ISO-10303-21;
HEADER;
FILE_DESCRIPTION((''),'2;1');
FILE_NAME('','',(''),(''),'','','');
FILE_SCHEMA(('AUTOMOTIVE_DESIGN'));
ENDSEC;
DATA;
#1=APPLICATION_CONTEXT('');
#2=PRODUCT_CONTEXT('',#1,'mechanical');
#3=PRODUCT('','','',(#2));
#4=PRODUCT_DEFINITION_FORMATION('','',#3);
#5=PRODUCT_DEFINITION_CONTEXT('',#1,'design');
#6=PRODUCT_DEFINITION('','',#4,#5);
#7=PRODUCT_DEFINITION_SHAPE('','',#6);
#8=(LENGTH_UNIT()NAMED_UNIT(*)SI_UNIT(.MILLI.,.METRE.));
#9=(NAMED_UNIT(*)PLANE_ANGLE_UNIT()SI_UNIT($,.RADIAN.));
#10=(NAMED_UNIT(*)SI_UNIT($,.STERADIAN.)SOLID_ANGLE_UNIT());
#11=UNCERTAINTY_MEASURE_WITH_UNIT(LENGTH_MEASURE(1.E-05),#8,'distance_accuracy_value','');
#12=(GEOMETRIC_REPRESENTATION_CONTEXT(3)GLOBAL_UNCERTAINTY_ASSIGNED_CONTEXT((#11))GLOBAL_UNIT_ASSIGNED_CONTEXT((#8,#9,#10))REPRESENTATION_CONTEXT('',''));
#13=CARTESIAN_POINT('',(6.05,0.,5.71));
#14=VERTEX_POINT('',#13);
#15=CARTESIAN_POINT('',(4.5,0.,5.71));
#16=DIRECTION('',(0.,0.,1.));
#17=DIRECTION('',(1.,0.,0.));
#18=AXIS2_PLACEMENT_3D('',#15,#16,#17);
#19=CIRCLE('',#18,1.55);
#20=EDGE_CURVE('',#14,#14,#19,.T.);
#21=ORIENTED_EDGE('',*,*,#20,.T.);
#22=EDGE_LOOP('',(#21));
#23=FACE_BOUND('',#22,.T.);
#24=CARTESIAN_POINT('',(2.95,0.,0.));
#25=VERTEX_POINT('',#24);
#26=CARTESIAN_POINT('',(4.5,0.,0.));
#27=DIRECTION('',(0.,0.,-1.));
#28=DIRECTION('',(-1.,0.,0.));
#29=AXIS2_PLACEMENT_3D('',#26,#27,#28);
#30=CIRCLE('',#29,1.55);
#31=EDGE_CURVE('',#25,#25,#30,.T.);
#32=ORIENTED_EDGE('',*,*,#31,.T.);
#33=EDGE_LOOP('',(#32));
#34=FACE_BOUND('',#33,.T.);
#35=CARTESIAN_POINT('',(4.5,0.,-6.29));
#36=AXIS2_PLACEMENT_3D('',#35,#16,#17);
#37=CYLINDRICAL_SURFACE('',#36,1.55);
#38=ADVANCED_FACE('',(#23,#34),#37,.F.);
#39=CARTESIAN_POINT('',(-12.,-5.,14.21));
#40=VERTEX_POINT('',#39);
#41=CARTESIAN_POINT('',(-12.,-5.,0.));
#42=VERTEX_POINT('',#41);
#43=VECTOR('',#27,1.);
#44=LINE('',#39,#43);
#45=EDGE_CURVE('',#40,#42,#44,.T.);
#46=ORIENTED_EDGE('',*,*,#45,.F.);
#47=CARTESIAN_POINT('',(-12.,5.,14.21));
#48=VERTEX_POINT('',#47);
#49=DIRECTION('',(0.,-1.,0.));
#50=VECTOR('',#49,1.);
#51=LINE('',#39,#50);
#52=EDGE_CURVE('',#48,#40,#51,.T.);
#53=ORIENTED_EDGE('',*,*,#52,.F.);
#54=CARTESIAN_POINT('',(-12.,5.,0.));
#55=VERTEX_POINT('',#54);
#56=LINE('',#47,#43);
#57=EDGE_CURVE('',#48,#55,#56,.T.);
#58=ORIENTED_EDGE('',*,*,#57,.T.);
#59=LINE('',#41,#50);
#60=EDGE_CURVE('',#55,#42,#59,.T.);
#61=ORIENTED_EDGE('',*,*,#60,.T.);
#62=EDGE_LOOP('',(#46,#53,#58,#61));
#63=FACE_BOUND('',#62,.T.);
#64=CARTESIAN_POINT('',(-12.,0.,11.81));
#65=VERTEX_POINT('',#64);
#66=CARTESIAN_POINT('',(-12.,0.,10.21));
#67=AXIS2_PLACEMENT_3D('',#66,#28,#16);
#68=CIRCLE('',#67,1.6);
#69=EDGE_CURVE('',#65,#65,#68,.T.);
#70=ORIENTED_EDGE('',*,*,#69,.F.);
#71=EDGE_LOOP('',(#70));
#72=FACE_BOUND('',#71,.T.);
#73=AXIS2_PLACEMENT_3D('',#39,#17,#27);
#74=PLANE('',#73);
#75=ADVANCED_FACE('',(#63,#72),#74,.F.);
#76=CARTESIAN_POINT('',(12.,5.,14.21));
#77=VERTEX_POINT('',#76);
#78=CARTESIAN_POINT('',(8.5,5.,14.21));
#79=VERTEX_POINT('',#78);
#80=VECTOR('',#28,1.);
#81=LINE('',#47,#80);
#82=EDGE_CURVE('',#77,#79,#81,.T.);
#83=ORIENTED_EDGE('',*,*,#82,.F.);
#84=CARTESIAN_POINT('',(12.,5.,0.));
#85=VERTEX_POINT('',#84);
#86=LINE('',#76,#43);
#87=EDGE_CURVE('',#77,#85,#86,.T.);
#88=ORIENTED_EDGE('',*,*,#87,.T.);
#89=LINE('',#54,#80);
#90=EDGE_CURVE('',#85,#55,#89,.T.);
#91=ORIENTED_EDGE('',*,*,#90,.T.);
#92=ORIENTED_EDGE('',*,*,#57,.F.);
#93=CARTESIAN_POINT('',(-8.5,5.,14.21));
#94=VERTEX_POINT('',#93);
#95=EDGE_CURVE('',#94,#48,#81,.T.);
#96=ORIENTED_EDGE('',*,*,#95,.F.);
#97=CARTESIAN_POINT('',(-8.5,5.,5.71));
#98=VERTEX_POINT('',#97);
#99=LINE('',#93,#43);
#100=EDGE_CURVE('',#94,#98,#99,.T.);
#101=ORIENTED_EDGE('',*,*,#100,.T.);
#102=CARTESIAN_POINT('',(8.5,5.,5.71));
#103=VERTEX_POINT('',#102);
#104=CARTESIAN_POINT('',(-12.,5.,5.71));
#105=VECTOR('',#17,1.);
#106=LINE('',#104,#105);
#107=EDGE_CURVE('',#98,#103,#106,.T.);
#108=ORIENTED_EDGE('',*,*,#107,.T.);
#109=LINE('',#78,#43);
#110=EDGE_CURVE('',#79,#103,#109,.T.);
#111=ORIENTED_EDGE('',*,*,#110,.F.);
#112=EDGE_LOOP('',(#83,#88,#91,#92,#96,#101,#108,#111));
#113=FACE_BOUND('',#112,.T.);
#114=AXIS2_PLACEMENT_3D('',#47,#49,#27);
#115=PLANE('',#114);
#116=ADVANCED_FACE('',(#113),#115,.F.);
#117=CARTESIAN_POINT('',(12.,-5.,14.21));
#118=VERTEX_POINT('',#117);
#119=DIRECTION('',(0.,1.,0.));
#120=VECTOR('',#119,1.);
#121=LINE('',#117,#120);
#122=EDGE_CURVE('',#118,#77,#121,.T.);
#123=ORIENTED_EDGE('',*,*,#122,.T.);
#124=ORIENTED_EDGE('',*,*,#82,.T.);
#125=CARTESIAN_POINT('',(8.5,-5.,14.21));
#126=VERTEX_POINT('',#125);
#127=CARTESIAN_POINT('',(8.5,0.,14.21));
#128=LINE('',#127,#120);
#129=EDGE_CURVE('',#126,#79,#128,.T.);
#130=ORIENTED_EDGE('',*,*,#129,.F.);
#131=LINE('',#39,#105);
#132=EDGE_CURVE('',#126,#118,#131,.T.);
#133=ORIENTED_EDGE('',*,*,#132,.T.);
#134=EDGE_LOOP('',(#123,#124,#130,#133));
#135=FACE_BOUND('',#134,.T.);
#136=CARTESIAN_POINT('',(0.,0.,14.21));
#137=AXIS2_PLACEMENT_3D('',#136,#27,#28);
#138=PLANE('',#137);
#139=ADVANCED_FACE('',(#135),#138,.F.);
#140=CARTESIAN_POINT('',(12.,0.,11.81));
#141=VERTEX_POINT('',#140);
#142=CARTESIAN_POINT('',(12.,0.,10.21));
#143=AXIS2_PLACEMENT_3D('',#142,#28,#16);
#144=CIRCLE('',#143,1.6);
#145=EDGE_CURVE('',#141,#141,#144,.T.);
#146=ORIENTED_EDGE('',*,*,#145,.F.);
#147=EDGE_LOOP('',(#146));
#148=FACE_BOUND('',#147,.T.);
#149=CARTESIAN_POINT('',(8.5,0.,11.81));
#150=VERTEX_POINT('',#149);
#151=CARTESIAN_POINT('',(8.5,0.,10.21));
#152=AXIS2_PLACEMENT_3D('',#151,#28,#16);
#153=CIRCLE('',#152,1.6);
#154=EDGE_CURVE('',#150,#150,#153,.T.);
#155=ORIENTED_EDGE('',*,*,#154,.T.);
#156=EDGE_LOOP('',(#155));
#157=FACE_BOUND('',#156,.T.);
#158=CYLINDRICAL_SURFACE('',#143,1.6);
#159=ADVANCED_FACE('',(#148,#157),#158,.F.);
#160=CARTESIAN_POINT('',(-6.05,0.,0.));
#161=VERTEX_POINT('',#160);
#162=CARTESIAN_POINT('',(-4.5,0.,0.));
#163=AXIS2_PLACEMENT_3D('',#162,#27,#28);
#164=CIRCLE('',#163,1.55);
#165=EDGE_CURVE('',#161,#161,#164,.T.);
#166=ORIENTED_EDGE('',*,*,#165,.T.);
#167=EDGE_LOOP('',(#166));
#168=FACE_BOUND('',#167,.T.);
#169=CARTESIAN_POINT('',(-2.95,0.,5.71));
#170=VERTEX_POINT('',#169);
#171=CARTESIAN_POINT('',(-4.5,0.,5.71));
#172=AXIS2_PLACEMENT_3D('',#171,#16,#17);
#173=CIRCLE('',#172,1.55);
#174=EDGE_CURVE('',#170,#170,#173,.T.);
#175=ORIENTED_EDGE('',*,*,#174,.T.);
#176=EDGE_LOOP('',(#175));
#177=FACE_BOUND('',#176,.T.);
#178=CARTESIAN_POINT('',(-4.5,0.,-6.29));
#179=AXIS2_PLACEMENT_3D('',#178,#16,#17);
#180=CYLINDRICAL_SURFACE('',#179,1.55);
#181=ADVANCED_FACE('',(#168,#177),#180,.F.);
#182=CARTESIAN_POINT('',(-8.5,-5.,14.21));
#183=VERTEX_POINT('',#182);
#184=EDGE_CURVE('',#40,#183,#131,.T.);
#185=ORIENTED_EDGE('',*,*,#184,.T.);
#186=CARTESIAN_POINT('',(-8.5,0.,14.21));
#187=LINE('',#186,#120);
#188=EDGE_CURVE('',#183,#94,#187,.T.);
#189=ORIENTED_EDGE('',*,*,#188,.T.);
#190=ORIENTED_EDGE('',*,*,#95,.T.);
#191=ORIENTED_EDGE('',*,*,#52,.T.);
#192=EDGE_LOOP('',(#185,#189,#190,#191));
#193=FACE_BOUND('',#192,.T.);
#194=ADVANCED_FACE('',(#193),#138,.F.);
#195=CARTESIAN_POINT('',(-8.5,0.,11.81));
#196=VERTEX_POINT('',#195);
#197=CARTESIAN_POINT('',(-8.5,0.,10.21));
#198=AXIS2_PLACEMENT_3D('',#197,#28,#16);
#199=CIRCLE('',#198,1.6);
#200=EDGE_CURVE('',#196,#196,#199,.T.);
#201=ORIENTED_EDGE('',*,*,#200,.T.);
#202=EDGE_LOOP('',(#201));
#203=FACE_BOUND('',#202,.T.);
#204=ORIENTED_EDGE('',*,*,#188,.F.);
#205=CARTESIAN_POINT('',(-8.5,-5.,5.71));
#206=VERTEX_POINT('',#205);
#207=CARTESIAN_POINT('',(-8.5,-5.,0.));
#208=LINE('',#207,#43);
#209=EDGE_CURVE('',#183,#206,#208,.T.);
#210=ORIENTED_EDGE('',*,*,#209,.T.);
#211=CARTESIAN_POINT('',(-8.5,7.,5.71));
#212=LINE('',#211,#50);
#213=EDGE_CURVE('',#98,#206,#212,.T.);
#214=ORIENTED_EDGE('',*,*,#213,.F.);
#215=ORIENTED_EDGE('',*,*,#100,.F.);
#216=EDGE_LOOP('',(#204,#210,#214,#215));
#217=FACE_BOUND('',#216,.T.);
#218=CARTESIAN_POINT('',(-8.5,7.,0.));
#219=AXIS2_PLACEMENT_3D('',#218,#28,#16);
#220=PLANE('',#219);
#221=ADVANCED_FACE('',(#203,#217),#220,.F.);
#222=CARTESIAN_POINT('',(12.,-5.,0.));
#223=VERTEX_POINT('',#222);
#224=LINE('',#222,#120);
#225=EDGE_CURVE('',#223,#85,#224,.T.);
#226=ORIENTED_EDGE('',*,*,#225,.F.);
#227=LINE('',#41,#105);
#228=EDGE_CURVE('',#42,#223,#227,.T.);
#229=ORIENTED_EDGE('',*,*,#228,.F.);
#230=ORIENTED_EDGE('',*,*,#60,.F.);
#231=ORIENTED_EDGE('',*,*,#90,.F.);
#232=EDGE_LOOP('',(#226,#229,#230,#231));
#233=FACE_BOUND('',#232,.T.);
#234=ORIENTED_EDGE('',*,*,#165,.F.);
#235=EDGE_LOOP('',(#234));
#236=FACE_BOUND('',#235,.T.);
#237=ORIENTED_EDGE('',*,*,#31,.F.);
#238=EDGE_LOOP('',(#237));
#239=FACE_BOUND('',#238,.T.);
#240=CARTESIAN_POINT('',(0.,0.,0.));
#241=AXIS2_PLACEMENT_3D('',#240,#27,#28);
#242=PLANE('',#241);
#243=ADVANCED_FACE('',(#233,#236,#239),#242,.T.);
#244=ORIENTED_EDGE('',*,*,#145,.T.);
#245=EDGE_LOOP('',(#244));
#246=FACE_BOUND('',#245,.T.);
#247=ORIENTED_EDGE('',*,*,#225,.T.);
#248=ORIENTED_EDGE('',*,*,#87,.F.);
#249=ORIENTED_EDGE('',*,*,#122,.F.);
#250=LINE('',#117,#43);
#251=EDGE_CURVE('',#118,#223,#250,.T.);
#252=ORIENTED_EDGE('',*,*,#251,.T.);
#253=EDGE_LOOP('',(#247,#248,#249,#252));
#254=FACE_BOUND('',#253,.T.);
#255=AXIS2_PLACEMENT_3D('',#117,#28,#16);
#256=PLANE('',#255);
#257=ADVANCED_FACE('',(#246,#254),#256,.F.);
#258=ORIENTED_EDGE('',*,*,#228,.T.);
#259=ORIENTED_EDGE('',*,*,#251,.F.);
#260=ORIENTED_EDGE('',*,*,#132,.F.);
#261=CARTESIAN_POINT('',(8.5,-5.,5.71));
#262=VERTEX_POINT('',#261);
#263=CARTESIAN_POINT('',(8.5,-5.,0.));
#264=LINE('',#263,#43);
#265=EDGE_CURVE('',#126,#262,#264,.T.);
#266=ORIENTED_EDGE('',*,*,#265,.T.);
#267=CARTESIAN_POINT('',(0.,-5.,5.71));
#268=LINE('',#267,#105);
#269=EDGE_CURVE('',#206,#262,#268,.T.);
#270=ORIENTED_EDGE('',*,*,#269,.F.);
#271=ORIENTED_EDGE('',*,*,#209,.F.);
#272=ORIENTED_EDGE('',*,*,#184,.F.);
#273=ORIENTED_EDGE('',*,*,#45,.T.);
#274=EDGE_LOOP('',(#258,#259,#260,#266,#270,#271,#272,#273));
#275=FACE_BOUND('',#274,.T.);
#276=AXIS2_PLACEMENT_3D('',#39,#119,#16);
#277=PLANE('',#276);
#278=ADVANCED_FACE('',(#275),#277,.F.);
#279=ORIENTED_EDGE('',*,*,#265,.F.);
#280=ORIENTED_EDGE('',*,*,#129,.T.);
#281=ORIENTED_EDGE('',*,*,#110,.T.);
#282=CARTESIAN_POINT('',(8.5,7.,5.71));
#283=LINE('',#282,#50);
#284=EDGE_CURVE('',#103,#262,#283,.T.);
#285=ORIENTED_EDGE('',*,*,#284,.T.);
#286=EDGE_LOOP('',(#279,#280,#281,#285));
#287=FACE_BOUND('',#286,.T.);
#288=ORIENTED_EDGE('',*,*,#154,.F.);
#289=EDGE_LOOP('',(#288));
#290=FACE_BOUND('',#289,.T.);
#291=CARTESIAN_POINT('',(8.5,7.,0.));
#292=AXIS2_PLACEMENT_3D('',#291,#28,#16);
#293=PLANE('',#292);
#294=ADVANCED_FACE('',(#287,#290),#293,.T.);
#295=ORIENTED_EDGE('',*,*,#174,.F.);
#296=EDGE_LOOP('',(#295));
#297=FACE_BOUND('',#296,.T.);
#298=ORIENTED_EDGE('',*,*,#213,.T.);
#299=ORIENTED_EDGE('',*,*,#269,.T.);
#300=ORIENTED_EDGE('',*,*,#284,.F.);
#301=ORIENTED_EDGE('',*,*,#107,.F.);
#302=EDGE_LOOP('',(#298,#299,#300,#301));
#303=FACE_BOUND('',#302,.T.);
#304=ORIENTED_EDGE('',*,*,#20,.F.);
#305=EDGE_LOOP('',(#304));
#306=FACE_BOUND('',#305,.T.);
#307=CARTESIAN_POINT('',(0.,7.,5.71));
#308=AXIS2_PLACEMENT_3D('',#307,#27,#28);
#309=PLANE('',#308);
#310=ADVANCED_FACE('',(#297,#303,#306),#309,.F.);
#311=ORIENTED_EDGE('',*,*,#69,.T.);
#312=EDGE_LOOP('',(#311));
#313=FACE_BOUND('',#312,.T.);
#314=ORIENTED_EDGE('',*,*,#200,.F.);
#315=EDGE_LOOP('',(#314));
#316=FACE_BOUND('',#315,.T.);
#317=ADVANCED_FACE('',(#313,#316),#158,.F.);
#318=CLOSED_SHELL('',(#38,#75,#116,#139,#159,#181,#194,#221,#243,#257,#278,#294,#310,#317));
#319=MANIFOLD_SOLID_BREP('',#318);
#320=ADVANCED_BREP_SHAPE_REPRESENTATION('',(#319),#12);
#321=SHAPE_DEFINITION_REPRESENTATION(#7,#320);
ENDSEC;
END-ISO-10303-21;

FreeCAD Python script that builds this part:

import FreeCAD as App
import Part
import Sketcher

V = App.Vector
Q = App.Units.Quantity


def add_polygon(sketch, points):
    """Adds a closed chain of lines whose ends are joined by coincident constraints."""
    first, n = sketch.GeometryCount, len(points)
    for a, b in zip(points, points[1:] + points[:1]):
        sketch.addGeometry(Part.LineSegment(App.Vector(*a, 0), App.Vector(*b, 0)), False)
    for i in range(n):
        sketch.addConstraint(Sketcher.Constraint("Coincident", first + i, 2, first + (i + 1) % n, 1))

doc = App.newDocument("Part")
body = doc.addObject("PartDesign::Body", "Body")

sketch1 = doc.addObject("Sketcher::SketchObject", "Sketch")
body.addObject(sketch1)
sketch1.AttachmentSupport = (doc.XY_Plane, [""])
sketch1.MapMode = "FlatFace"
add_polygon(sketch1, [(-12, 5), (-12, -5), (12, -5), (12, 5)])
sketch1.addConstraint(Sketcher.Constraint("Vertical", 0))
sketch1.addConstraint(Sketcher.Constraint("Horizontal", 1))
sketch1.addConstraint(Sketcher.Constraint("Vertical", 2))
sketch1.addConstraint(Sketcher.Constraint("Horizontal", 3))
sketch1.addConstraint(Sketcher.Constraint("Symmetric", 0, 2, 2, 2, -1, 1))
sketch1.addConstraint(Sketcher.Constraint("DistanceX", 1, 1, 1, 2, Q("24 mm")))
sketch1.addConstraint(Sketcher.Constraint("DistanceY", 0, 2, 0, 1, Q("10 mm")))
pad1 = doc.addObject("PartDesign::Pad", "Pad")
body.addObject(pad1)
pad1.Profile = sketch1
pad1.Length = 14.21

sketch2 = doc.addObject("Sketcher::SketchObject", "Sketch001")
body.addObject(sketch2)
sketch2.AttachmentSupport = (doc.XZ_Plane, [""])
sketch2.MapMode = "FlatFace"
sketch2.AttachmentOffset = App.Placement(V(0, 0, 5), App.Rotation())
add_polygon(sketch2, [(-8, 14), (-8, 6), (8, 6), (8, 14)])
sketch2.addConstraint(Sketcher.Constraint("Vertical", 0))
sketch2.addConstraint(Sketcher.Constraint("Horizontal", 1))
sketch2.addConstraint(Sketcher.Constraint("Vertical", 2))
sketch2.addConstraint(Sketcher.Constraint("Horizontal", 3))
sketch2.addConstraint(Sketcher.Constraint("DistanceX", 1, 1, 1, 2, Q("17 mm")))
sketch2.addConstraint(Sketcher.Constraint("DistanceY", 0, 2, 0, 1, Q("8.5 mm")))
sketch2.addConstraint(Sketcher.Constraint("DistanceX", 0, 2, -1, 1, Q("8.5 mm")))
sketch2.addConstraint(Sketcher.Constraint("DistanceY", -1, 1, 0, 2, Q("5.71 mm")))
pocket1 = doc.addObject("PartDesign::Pocket", "Pocket")
body.addObject(pocket1)
pocket1.Profile = sketch2
pocket1.Length = 12

sketch3 = doc.addObject("Sketcher::SketchObject", "Sketch002")
body.addObject(sketch3)
sketch3.AttachmentSupport = (doc.YZ_Plane, [""])
sketch3.MapMode = "FlatFace"
sketch3.AttachmentOffset = App.Placement(V(0, 0, -12), App.Rotation())
sketch3.addGeometry(Part.Circle(V(0, 10.2, 0), V(0, 0, 1), 1.6), False)
sketch3.addConstraint(Sketcher.Constraint("PointOnObject", 0, 3, -2))
sketch3.addConstraint(Sketcher.Constraint("Diameter", 0, Q("3.2 mm")))
sketch3.addConstraint(Sketcher.Constraint("DistanceY", -1, 1, 0, 3, Q("10.21 mm")))
pocket2 = doc.addObject("PartDesign::Pocket", "Pocket001")
body.addObject(pocket2)
pocket2.Profile = sketch3
pocket2.Type = "ThroughAll"
pocket2.Reversed = True

sketch4 = doc.addObject("Sketcher::SketchObject", "Sketch003")
body.addObject(sketch4)
sketch4.AttachmentSupport = (doc.XY_Plane, [""])
sketch4.MapMode = "FlatFace"
sketch4.AttachmentOffset = App.Placement(V(0, 0, 5.71), App.Rotation())
sketch4.addGeometry(Part.Circle(V(-4.5, 0, 0), V(0, 0, 1), 1.6), False)
sketch4.addGeometry(Part.Circle(V(4.5, 0, 0), V(0, 0, 1), 1.6), False)
sketch4.addConstraint(Sketcher.Constraint("Equal", 0, 1))
sketch4.addConstraint(Sketcher.Constraint("Symmetric", 0, 3, 1, 3, -1, 1))
sketch4.addConstraint(Sketcher.Constraint("PointOnObject", 0, 3, -1))
sketch4.addConstraint(Sketcher.Constraint("Diameter", 0, Q("3.1 mm")))
sketch4.addConstraint(Sketcher.Constraint("DistanceX", 0, 3, 1, 3, Q("9 mm")))
pocket3 = doc.addObject("PartDesign::Pocket", "Pocket002")
body.addObject(pocket3)
pocket3.Profile = sketch4
pocket3.Length = 12

doc.recompute()
